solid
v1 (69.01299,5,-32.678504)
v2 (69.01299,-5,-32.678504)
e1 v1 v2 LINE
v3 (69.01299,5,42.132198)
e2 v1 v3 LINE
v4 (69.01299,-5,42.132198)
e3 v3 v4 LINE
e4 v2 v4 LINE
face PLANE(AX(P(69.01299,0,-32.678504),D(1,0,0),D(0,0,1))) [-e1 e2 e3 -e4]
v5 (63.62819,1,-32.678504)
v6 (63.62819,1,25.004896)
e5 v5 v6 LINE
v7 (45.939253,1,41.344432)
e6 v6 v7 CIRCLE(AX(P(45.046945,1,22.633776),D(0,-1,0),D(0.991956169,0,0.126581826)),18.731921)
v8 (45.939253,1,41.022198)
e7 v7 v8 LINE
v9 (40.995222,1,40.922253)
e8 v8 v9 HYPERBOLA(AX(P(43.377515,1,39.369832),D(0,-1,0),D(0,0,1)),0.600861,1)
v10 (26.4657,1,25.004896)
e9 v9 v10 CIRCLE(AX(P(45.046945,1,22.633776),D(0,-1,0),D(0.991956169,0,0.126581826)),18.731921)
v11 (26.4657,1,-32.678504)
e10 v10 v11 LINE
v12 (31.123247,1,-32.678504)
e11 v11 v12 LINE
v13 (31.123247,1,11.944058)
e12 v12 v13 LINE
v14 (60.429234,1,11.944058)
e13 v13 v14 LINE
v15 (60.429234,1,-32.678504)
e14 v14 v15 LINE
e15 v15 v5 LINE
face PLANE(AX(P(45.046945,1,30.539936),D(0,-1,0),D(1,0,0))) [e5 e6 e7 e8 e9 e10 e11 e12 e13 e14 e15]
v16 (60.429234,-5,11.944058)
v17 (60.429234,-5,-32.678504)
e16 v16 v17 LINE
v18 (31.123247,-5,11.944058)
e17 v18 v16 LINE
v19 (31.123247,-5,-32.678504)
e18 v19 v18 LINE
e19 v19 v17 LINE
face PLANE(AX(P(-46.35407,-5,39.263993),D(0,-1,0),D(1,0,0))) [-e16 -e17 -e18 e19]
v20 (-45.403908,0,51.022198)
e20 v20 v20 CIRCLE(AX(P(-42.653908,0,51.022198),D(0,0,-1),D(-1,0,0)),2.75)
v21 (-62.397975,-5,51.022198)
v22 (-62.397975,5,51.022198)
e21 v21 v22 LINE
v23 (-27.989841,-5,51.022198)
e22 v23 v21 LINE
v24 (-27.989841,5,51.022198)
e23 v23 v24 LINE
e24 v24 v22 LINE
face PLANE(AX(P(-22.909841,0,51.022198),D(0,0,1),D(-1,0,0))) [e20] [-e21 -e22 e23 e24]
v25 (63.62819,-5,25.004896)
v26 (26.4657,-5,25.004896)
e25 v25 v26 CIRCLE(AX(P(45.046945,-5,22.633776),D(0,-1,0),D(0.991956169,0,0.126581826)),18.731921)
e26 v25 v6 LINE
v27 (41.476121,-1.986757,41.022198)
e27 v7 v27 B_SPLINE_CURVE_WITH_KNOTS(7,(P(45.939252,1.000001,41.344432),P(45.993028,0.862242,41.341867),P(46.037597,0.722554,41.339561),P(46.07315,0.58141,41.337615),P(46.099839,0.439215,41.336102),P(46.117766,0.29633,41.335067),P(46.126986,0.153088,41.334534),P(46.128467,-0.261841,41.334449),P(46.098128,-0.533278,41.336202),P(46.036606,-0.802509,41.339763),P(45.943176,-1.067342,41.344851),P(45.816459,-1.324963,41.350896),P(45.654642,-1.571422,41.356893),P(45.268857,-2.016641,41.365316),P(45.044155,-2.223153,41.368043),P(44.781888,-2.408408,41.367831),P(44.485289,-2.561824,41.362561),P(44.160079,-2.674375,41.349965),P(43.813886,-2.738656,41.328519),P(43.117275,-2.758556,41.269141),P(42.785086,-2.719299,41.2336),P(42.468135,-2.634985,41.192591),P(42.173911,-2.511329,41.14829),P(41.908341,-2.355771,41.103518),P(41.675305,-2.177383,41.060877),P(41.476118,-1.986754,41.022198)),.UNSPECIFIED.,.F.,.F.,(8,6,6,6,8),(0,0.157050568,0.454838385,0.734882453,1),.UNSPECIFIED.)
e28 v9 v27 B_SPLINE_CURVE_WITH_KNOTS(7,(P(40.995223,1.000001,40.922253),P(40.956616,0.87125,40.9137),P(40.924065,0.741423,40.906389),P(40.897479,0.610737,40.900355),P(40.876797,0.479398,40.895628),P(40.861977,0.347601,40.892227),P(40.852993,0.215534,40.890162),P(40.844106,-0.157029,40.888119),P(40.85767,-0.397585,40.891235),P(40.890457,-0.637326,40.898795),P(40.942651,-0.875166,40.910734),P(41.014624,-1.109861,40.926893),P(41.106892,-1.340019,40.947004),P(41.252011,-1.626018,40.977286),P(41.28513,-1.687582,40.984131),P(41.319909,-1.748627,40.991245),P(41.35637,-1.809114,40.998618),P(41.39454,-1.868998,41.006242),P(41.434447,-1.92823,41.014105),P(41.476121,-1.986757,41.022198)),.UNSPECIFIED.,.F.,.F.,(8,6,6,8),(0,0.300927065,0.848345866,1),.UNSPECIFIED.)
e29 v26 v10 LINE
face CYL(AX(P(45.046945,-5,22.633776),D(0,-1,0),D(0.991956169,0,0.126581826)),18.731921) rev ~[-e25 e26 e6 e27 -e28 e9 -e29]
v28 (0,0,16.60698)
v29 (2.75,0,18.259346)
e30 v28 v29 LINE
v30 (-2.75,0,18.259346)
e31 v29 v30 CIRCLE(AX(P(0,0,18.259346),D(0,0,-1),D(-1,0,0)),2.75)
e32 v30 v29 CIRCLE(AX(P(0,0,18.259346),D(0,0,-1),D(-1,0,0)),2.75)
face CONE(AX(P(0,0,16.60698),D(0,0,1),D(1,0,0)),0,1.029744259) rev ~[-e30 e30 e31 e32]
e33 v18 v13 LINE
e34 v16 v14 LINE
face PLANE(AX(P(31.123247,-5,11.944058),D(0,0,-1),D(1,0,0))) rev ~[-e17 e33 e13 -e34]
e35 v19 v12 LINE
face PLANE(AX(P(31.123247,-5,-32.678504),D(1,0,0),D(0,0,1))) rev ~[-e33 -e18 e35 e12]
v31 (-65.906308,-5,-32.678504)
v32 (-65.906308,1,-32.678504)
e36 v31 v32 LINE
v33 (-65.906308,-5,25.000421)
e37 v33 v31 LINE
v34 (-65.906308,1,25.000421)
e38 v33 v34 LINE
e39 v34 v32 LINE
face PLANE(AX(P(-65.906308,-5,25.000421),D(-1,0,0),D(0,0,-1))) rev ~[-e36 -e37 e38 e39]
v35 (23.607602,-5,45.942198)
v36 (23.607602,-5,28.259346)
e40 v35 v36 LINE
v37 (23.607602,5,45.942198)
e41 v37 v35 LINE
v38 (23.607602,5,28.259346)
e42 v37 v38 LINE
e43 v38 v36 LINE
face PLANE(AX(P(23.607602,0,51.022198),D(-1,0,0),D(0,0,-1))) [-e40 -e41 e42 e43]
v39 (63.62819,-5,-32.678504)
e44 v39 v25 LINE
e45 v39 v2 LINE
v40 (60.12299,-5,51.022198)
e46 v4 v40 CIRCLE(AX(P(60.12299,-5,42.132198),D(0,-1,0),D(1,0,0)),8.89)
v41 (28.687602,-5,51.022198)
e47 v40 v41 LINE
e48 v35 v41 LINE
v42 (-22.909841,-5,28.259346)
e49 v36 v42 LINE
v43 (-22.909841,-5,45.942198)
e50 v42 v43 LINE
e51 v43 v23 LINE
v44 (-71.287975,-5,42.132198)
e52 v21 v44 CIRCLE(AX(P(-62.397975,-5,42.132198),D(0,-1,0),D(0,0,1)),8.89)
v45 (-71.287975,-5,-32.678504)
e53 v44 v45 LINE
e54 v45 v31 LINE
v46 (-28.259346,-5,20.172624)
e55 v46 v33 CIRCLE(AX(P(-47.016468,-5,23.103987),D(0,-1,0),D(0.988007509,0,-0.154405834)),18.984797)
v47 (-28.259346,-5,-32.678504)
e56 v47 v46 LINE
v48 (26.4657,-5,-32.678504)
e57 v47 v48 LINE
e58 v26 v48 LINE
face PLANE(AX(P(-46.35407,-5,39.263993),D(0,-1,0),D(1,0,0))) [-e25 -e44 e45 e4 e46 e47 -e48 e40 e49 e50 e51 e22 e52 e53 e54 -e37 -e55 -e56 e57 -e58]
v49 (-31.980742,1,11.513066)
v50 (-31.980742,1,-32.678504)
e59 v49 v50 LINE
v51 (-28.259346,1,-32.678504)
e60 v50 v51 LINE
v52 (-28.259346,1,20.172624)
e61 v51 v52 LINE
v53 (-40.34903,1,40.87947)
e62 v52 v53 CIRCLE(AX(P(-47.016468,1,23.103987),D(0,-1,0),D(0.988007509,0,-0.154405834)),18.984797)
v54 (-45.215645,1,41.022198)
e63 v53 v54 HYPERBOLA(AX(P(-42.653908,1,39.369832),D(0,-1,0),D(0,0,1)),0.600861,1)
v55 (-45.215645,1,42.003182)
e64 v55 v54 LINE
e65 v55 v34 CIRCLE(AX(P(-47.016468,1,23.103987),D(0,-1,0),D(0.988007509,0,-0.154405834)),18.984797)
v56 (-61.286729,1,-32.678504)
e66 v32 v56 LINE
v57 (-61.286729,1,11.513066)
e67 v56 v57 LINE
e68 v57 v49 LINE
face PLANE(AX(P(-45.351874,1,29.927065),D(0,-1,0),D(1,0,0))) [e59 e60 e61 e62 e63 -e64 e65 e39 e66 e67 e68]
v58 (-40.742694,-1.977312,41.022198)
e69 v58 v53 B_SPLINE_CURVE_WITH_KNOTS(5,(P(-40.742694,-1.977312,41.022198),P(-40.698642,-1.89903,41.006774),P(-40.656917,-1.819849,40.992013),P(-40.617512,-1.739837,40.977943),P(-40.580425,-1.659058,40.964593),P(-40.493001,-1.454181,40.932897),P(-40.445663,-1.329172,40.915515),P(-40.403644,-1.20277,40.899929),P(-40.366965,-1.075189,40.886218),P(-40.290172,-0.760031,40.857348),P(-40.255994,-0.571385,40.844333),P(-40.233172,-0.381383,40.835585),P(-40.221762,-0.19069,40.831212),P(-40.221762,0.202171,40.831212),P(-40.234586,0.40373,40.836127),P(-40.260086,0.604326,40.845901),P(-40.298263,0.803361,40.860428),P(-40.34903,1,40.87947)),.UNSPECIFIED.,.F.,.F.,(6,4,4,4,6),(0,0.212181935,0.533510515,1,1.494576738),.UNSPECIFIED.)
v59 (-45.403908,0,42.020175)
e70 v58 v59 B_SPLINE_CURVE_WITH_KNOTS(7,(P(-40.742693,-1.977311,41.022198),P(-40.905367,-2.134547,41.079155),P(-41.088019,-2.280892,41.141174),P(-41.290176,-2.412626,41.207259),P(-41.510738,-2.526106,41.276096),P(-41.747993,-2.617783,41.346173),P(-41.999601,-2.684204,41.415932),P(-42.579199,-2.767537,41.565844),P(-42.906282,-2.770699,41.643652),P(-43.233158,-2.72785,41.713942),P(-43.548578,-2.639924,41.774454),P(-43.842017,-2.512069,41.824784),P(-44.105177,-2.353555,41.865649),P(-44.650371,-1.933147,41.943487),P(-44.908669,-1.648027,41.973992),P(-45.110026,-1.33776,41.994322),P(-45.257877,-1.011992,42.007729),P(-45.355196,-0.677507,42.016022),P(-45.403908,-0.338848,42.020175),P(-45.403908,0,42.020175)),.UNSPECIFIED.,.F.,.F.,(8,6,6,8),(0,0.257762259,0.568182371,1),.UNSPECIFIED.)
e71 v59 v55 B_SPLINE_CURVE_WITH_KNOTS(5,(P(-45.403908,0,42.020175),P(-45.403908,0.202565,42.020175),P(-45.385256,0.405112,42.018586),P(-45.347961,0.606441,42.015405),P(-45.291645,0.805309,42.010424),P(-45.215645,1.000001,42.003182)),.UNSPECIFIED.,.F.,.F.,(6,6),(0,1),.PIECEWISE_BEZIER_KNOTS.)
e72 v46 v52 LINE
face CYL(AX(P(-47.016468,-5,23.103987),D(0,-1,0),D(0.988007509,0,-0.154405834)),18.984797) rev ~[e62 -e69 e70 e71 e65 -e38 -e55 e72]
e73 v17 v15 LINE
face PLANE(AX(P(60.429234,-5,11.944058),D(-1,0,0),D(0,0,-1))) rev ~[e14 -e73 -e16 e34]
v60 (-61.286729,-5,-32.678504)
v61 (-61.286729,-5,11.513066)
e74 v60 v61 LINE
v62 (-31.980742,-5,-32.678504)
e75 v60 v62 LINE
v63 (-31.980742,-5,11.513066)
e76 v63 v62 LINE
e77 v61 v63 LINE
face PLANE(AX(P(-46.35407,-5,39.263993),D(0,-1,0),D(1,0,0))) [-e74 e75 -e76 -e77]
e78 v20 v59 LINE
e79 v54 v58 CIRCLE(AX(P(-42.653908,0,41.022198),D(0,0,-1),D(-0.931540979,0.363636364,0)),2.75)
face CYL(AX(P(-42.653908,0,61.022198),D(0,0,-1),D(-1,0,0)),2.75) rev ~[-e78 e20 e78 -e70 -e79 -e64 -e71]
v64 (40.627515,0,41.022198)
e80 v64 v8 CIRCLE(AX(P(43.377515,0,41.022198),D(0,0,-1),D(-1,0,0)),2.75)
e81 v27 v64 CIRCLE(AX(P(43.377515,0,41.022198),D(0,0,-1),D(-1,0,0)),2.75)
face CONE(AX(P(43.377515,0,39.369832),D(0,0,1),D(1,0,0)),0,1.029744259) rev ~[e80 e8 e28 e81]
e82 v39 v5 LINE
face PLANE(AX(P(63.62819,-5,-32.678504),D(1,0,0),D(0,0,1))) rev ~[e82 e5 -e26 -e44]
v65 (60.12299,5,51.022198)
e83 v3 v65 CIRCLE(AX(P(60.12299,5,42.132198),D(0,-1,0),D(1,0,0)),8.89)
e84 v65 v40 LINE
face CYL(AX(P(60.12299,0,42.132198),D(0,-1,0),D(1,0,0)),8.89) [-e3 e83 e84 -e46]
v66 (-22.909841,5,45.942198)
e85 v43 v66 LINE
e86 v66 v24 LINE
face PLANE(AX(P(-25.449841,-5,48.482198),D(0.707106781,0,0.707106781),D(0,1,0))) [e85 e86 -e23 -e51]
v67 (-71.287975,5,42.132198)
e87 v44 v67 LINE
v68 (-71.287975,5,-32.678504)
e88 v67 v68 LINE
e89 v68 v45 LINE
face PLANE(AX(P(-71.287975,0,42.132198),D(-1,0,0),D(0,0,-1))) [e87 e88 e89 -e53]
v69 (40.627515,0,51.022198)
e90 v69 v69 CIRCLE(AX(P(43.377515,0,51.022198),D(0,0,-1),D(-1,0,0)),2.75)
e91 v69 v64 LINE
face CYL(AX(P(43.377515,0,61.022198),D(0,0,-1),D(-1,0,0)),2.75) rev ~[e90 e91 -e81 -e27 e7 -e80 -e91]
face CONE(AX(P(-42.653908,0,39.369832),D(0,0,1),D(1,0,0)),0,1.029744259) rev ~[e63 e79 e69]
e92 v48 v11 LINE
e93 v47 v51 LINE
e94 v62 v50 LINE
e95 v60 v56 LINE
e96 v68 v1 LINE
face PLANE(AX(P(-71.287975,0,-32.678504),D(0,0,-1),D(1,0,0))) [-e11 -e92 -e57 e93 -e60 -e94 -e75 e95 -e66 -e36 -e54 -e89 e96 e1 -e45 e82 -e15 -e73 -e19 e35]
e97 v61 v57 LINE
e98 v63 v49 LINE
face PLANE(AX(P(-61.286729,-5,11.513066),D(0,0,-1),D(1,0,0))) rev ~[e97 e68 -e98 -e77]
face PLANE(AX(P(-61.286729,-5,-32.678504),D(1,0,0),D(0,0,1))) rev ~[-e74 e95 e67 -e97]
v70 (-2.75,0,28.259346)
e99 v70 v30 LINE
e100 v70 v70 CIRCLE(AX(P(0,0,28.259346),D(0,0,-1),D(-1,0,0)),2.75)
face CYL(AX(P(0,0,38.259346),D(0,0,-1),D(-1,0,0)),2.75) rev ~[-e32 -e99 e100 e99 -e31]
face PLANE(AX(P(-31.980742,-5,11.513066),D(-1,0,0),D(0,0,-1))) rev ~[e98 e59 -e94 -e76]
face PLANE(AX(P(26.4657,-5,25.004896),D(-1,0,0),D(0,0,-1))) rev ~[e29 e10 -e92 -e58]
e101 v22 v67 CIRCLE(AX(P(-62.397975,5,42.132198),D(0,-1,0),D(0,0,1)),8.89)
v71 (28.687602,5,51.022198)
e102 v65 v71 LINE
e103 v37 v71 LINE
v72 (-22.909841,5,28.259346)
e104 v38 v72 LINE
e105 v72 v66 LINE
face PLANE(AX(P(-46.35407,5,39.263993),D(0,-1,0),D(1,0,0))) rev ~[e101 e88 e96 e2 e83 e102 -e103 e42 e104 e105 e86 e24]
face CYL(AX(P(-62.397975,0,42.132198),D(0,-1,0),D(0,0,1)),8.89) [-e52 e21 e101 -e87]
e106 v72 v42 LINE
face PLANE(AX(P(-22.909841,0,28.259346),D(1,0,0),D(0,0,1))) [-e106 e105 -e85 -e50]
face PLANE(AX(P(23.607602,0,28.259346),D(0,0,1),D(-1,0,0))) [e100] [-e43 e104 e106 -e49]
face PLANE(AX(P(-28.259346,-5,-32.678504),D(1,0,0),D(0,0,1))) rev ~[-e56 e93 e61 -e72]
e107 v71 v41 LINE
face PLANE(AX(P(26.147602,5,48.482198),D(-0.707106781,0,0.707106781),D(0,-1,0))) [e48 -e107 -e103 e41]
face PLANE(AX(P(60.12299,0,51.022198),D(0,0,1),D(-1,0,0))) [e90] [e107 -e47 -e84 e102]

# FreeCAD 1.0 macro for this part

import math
import FreeCAD as App
import Part
import Sketcher


def edges_at(feature, points):
    """Names of the edges that pass closest to the given points."""
    edges = feature.Shape.Edges
    near = lambda p: min(range(len(edges)), key=lambda i: edges[i].distToShape(Part.Vertex(*p))[0])
    return sorted({f"Edge{near(p) + 1}" for p in points})

doc = App.newDocument("Part")
params = doc.addObject("Spreadsheet::Sheet", "Params")
for row, (alias, value) in enumerate([
    ("sketch1_radius", "8.89 mm"),
    ("pad1_length", "10 mm"),
    ("sketch2_diameter", "5.5 mm"),
    ("hole_diameter", "5.5 mm"),
    ("hole_depth", "10 mm"),
    ("sketch3_diameter", "5.5 mm"),
    ("hole2_diameter", "5.5 mm"),
    ("hole2_depth", "10 mm"),
    ("sketch4_diameter", "5.5 mm"),
    ("hole3_diameter", "5.5 mm"),
    ("hole3_depth", "10 mm"),
    ("pocket1_length", "6 mm"),
    ("pocket2_length", "6 mm"),
    ("chamfer_size", "5.08 mm"),
    ("chamfer2_size", "5.08 mm"),
], start=1):
    params.set(f"A{row}", alias)
    params.set(f"B{row}", "=" + value)
    params.setAlias(f"B{row}", alias)

body = doc.addObject("PartDesign::Body", "Body")

# Sketch on XZ plane
sketch1 = body.newObject("Sketcher::SketchObject", "Sketch")
sketch1.AttachmentSupport = (doc.getObject("XZ_Plane"), [""])
sketch1.MapMode = "FlatFace"
sketch1.addGeometry([
    Part.LineSegment(App.Vector(-71, 42, 0), App.Vector(-71, -33, 0)),  # 0
    Part.LineSegment(App.Vector(-71, -33, 0), App.Vector(69, -33, 0)),  # 1
    Part.LineSegment(App.Vector(69, -33, 0), App.Vector(69, 42, 0)),  # 2
    Part.ArcOfCircle(Part.Circle(App.Vector(60, 42, 0), App.Vector(0, 0, 1), 9), math.radians(0), math.radians(90)),  # 3
    Part.LineSegment(App.Vector(60, 51, 0), App.Vector(24, 51, 0)),  # 4
    Part.LineSegment(App.Vector(24, 51, 0), App.Vector(24, 28, 0)),  # 5
    Part.LineSegment(App.Vector(24, 28, 0), App.Vector(-23, 28, 0)),  # 6
    Part.LineSegment(App.Vector(-23, 28, 0), App.Vector(-23, 51, 0)),  # 7
    Part.LineSegment(App.Vector(-23, 51, 0), App.Vector(-62, 51, 0)),  # 8
    Part.ArcOfCircle(Part.Circle(App.Vector(-62, 42, 0), App.Vector(0, 0, 1), 9), math.radians(90), math.radians(180)),  # 9
], False)
sketch1.addConstraint([
    Sketcher.Constraint("Coincident", 0, 2, 1, 1),
    Sketcher.Constraint("Coincident", 1, 2, 2, 1),
    Sketcher.Constraint("Tangent", 2, 2, 3, 1),
    Sketcher.Constraint("Tangent", 3, 2, 4, 1),
    Sketcher.Constraint("Coincident", 4, 2, 5, 1),
    Sketcher.Constraint("Coincident", 5, 2, 6, 1),
    Sketcher.Constraint("Coincident", 6, 2, 7, 1),
    Sketcher.Constraint("Coincident", 7, 2, 8, 1),
    Sketcher.Constraint("Tangent", 8, 2, 9, 1),
    Sketcher.Constraint("Tangent", 9, 2, 0, 1),
    Sketcher.Constraint("Vertical", 0),
    Sketcher.Constraint("Horizontal", 1),
    Sketcher.Constraint("Vertical", 2),
    Sketcher.Constraint("Horizontal", 4),
    Sketcher.Constraint("Vertical", 5),
    Sketcher.Constraint("Horizontal", 6),
    Sketcher.Constraint("Vertical", 7),
    Sketcher.Constraint("Horizontal", 8),
    Sketcher.Constraint("Equal", 3, 9),
    Sketcher.Constraint("Horizontal", 3, 3, 9, 3),
    Sketcher.Constraint("Radius", 3, 8.89),
    Sketcher.Constraint("DistanceY", 0, 2, 0, 1, 74.810702),
    Sketcher.Constraint("DistanceY", 5, 2, 5, 1, 22.762852),
    Sketcher.Constraint("DistanceY", -1, 1, 3, 3, 42.132198),
    Sketcher.Constraint("DistanceX", 1, 1, 1, 2, 140.300964),
    Sketcher.Constraint("DistanceX", 4, 2, 4, 1, 36.515387),
    Sketcher.Constraint("DistanceX", 6, 2, 6, 1, 46.517443),
    Sketcher.Constraint("DistanceX", -1, 1, 3, 3, 60.12299),
])
sketch1.setExpression("Constraints[20]", "Params.sketch1_radius")
pad1 = body.newObject("PartDesign::Pad", "Pad")
pad1.Profile = sketch1
pad1.setExpression("Length", "Params.pad1_length")
pad1.Midplane = True

# Sketch on XY plane
sketch2 = body.newObject("Sketcher::SketchObject", "Sketch001")
sketch2.AttachmentSupport = (doc.getObject("XY_Plane"), [""])
sketch2.MapMode = "FlatFace"
sketch2.AttachmentOffset = App.Placement(App.Vector(0, 0, 51.022198), App.Rotation())
sketch2.addGeometry(Part.Circle(App.Vector(-42.7, 0, 0), App.Vector(0, 0, 1), 2.8), False)
sketch2.addConstraint([
    Sketcher.Constraint("PointOnObject", 0, 3, -1),
    Sketcher.Constraint("Diameter", 0, 5.5),
    Sketcher.Constraint("DistanceX", 0, 3, -1, 1, 42.653908),
])
sketch2.setExpression("Constraints[1]", "Params.sketch2_diameter")
doc.recompute()
hole = body.newObject("PartDesign::Hole", "Hole")
hole.Profile = sketch2
hole.ThreadType = "None"
hole.setExpression("Diameter", "Params.hole_diameter")
hole.DepthType = "Dimension"
hole.setExpression("Depth", "Params.hole_depth")
hole.DrillPoint = "Angled"
hole.DrillPointAngle = 118

# Sketch on XY plane
sketch3 = body.newObject("Sketcher::SketchObject", "Sketch002")
sketch3.AttachmentSupport = (doc.getObject("XY_Plane"), [""])
sketch3.MapMode = "FlatFace"
sketch3.AttachmentOffset = App.Placement(App.Vector(0, 0, 51.022198), App.Rotation())
sketch3.addGeometry(Part.Circle(App.Vector(43.4, 0, 0), App.Vector(0, 0, 1), 2.8), False)
sketch3.addConstraint([
    Sketcher.Constraint("PointOnObject", 0, 3, -1),
    Sketcher.Constraint("Diameter", 0, 5.5),
    Sketcher.Constraint("DistanceX", -1, 1, 0, 3, 43.377515),
])
sketch3.setExpression("Constraints[1]", "Params.sketch3_diameter")
doc.recompute()
hole2 = body.newObject("PartDesign::Hole", "Hole001")
hole2.Profile = sketch3
hole2.ThreadType = "None"
hole2.setExpression("Diameter", "Params.hole2_diameter")
hole2.DepthType = "Dimension"
hole2.setExpression("Depth", "Params.hole2_depth")
hole2.DrillPoint = "Angled"
hole2.DrillPointAngle = 118

# Sketch on XY plane
sketch4 = body.newObject("Sketcher::SketchObject", "Sketch003")
sketch4.AttachmentSupport = (doc.getObject("XY_Plane"), [""])
sketch4.MapMode = "FlatFace"
sketch4.AttachmentOffset = App.Placement(App.Vector(0, 0, 28.259346), App.Rotation())
sketch4.addGeometry(Part.Circle(App.Vector(0, 0, 0), App.Vector(0, 0, 1), 2.8), False)
sketch4.addConstraint([
    Sketcher.Constraint("Coincident", 0, 3, -1, 1),
    Sketcher.Constraint("Diameter", 0, 5.5),
])
sketch4.setExpression("Constraints[1]", "Params.sketch4_diameter")
doc.recompute()
hole3 = body.newObject("PartDesign::Hole", "Hole002")
hole3.Profile = sketch4
hole3.ThreadType = "None"
hole3.setExpression("Diameter", "Params.hole3_diameter")
hole3.DepthType = "Dimension"
hole3.setExpression("Depth", "Params.hole3_depth")
hole3.DrillPoint = "Angled"
hole3.DrillPointAngle = 118

# Sketch on XZ plane
sketch5 = body.newObject("Sketcher::SketchObject", "Sketch004")
sketch5.AttachmentSupport = (doc.getObject("XZ_Plane"), [""])
sketch5.MapMode = "FlatFace"
sketch5.AttachmentOffset = App.Placement(App.Vector(0, 0, 5), App.Rotation())
sketch5.addGeometry([
    Part.ArcOfCircle(Part.Circle(App.Vector(-47, 23.1, 0), App.Vector(0, 0, 1), 19), math.radians(-9), math.radians(174)),  # 0
    Part.LineSegment(App.Vector(-65.9, 25, 0), App.Vector(-65.9, -32.7, 0)),  # 1
    Part.LineSegment(App.Vector(-65.9, -32.7, 0), App.Vector(-61.3, -32.7, 0)),  # 2
    Part.LineSegment(App.Vector(-61.3, -32.7, 0), App.Vector(-61.3, 11.5, 0)),  # 3
    Part.LineSegment(App.Vector(-61.3, 11.5, 0), App.Vector(-32, 11.5, 0)),  # 4
    Part.LineSegment(App.Vector(-32, 11.5, 0), App.Vector(-32, -32.7, 0)),  # 5
    Part.LineSegment(App.Vector(-32, -32.7, 0), App.Vector(-28.3, -32.7, 0)),  # 6
    Part.LineSegment(App.Vector(-28.3, -32.7, 0), App.Vector(-28.3, 20.2, 0)),  # 7
], False)
sketch5.addConstraint([
    Sketcher.Constraint("Coincident", 0, 2, 1, 1),
    Sketcher.Constraint("Coincident", 1, 2, 2, 1),
    Sketcher.Constraint("Coincident", 2, 2, 3, 1),
    Sketcher.Constraint("Coincident", 3, 2, 4, 1),
    Sketcher.Constraint("Coincident", 4, 2, 5, 1),
    Sketcher.Constraint("Coincident", 5, 2, 6, 1),
    Sketcher.Constraint("Coincident", 6, 2, 7, 1),
    Sketcher.Constraint("Coincident", 7, 2, 0, 1),
    Sketcher.Constraint("Vertical", 1),
    Sketcher.Constraint("Horizontal", 2),
    Sketcher.Constraint("Vertical", 3),
    Sketcher.Constraint("Horizontal", 4),
    Sketcher.Constraint("Vertical", 5),
    Sketcher.Constraint("Horizontal", 6),
    Sketcher.Constraint("Vertical", 7),
    Sketcher.Constraint("Horizontal", 2, 2, 5, 2),
    Sketcher.Constraint("Radius", 0, 18.984797),
    Sketcher.Constraint("DistanceX", 2, 1, 2, 2, 4.61958),
    Sketcher.Constraint("DistanceY", 3, 1, 3, 2, 44.19157),
    Sketcher.Constraint("DistanceX", 4, 1, 4, 2, 29.305987),
    Sketcher.Constraint("DistanceX", 6, 1, 6, 2, 3.721396),
    Sketcher.Constraint("DistanceY", 1, 2, 1, 1, 57.678924),
    Sketcher.Constraint("DistanceY", 7, 1, 7, 2, 52.851127),
    Sketcher.Constraint("DistanceX", 0, 3, -1, 1, 47.016468),
    Sketcher.Constraint("DistanceY", -1, 1, 0, 2, 25.000421),
])
pocket1 = body.newObject("PartDesign::Pocket", "Pocket")
pocket1.Profile = sketch5
pocket1.setExpression("Length", "Params.pocket1_length")

# Sketch on XZ plane
sketch6 = body.newObject("Sketcher::SketchObject", "Sketch005")
sketch6.AttachmentSupport = (doc.getObject("XZ_Plane"), [""])
sketch6.MapMode = "FlatFace"
sketch6.AttachmentOffset = App.Placement(App.Vector(0, 0, 5), App.Rotation())
sketch6.addGeometry([
    Part.ArcOfCircle(Part.Circle(App.Vector(45, 22.6, 0), App.Vector(0, 0, 1), 18.7), math.radians(7), math.radians(173)),  # 0
    Part.LineSegment(App.Vector(26.5, 25, 0), App.Vector(26.5, -32.7, 0)),  # 1
    Part.LineSegment(App.Vector(26.5, -32.7, 0), App.Vector(31.1, -32.7, 0)),  # 2
    Part.LineSegment(App.Vector(31.1, -32.7, 0), App.Vector(31.1, 11.9, 0)),  # 3
    Part.LineSegment(App.Vector(31.1, 11.9, 0), App.Vector(60.4, 11.9, 0)),  # 4
    Part.LineSegment(App.Vector(60.4, 11.9, 0), App.Vector(60.4, -32.7, 0)),  # 5
    Part.LineSegment(App.Vector(60.4, -32.7, 0), App.Vector(63.6, -32.7, 0)),  # 6
    Part.LineSegment(App.Vector(63.6, -32.7, 0), App.Vector(63.6, 25, 0)),  # 7
], False)
sketch6.addConstraint([
    Sketcher.Constraint("Coincident", 0, 2, 1, 1),
    Sketcher.Constraint("Coincident", 1, 2, 2, 1),
    Sketcher.Constraint("Coincident", 2, 2, 3, 1),
    Sketcher.Constraint("Coincident", 3, 2, 4, 1),
    Sketcher.Constraint("Coincident", 4, 2, 5, 1),
    Sketcher.Constraint("Coincident", 5, 2, 6, 1),
    Sketcher.Constraint("Coincident", 6, 2, 7, 1),
    Sketcher.Constraint("Coincident", 7, 2, 0, 1),
    Sketcher.Constraint("Vertical", 1),
    Sketcher.Constraint("Horizontal", 2),
    Sketcher.Constraint("Vertical", 3),
    Sketcher.Constraint("Horizontal", 4),
    Sketcher.Constraint("Vertical", 5),
    Sketcher.Constraint("Horizontal", 6),
    Sketcher.Constraint("Vertical", 7),
    Sketcher.Constraint("Horizontal", 2, 2, 5, 2),
    Sketcher.Constraint("Horizontal", 0, 2, 7, 2),
    Sketcher.Constraint("Radius", 0, 18.731921),
    Sketcher.Constraint("DistanceY", 1, 2, 1, 1, 57.6834),
    Sketcher.Constraint("DistanceY", 3, 1, 3, 2, 44.622561),
    Sketcher.Constraint("DistanceX", -1, 1, 0, 2, 26.4657),
    Sketcher.Constraint("DistanceX", 2, 2, 0, 3, 13.923699),
    Sketcher.Constraint("DistanceX", 2, 1, 2, 2, 4.657546),
    Sketcher.Constraint("DistanceX", 4, 1, 4, 2, 29.305987),
    Sketcher.Constraint("DistanceY", -1, 1, 0, 3, 22.633776),
])
pocket2 = body.newObject("PartDesign::Pocket", "Pocket001")
pocket2.Profile = sketch6
pocket2.setExpression("Length", "Params.pocket2_length")
doc.recompute()

chamfer = body.newObject("PartDesign::Chamfer", "Chamfer")
chamfer.Base = (pocket2, edges_at(pocket2, [(-22.91, 0, 51.022)]))
chamfer.setExpression("Size", "Params.chamfer_size")
doc.recompute()

chamfer2 = body.newObject("PartDesign::Chamfer", "Chamfer001")
chamfer2.Base = (chamfer, edges_at(chamfer, [(23.608, 0, 51.022)]))
chamfer2.setExpression("Size", "Params.chamfer2_size")

doc.recompute()
